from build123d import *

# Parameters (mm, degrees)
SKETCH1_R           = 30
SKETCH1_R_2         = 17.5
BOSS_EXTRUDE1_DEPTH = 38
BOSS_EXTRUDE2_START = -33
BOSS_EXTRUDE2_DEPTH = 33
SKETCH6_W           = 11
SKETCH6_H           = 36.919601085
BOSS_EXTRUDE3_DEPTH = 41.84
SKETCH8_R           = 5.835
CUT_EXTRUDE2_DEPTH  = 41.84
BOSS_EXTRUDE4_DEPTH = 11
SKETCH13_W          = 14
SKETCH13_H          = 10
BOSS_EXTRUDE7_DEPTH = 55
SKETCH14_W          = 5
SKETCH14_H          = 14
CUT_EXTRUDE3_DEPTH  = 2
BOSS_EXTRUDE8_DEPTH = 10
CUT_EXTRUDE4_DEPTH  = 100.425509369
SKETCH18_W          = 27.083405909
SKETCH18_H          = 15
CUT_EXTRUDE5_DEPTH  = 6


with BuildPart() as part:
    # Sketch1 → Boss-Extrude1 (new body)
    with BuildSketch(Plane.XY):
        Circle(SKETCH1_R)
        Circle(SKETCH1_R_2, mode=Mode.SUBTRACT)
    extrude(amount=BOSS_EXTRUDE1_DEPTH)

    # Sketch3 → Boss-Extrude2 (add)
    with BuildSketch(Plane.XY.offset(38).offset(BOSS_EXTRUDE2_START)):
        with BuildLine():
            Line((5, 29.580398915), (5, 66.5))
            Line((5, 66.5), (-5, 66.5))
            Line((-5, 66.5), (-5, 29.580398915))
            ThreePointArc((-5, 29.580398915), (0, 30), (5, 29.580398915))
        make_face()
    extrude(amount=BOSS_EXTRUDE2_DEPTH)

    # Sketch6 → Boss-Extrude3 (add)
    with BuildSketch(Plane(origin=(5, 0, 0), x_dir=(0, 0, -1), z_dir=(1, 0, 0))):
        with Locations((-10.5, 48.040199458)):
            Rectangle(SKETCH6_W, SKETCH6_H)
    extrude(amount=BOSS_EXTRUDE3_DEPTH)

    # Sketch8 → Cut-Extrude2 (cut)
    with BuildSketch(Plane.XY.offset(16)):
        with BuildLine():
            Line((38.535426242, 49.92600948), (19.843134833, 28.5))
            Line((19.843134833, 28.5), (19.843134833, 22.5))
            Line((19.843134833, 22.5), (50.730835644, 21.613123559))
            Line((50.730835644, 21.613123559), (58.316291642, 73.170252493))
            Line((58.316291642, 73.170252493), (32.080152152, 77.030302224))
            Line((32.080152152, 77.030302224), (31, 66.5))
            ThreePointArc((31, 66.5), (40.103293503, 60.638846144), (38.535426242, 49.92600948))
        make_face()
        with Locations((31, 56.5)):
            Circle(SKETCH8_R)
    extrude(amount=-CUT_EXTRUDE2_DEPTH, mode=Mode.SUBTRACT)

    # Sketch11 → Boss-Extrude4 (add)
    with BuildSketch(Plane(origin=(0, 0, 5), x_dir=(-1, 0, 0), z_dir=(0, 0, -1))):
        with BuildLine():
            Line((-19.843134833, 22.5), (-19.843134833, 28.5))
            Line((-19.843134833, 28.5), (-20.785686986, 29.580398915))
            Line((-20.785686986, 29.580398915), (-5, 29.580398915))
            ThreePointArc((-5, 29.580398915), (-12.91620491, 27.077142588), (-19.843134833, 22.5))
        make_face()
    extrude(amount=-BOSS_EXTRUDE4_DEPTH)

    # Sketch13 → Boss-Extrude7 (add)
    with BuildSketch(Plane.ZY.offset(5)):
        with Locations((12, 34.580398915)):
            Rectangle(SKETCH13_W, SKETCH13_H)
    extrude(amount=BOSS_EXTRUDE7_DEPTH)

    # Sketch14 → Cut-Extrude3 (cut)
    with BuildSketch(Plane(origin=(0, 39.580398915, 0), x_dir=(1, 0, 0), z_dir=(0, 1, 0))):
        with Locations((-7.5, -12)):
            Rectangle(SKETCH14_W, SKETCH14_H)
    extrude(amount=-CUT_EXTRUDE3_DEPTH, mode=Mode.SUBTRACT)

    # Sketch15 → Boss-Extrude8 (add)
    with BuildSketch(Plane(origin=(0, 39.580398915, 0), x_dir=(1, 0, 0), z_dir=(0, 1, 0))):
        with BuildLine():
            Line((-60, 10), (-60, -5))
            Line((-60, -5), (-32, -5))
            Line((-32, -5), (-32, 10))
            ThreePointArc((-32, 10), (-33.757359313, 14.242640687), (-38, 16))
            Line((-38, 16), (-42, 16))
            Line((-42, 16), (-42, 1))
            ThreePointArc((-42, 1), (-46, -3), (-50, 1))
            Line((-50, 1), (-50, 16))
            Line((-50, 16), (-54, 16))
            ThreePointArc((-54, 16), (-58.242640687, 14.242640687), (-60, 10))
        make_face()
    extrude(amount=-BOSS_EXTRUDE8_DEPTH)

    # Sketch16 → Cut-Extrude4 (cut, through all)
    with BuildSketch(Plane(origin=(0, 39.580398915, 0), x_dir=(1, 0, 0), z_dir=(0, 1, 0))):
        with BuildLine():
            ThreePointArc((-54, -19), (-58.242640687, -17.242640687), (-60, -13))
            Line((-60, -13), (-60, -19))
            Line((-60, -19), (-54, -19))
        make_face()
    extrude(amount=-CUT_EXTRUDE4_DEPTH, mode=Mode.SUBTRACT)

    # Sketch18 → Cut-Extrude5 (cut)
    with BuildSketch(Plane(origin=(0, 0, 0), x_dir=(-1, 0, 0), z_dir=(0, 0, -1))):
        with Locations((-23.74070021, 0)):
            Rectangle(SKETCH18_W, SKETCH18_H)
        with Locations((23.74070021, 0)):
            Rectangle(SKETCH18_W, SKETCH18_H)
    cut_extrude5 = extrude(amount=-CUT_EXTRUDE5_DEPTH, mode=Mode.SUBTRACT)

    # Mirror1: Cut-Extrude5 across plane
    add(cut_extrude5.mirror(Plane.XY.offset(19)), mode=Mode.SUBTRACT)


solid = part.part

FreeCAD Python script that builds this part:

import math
import FreeCAD as App
import Part
import Sketcher
Q = App.Units.Quantity

doc = App.newDocument("Part")
body = doc.addObject("PartDesign::Body", "Body")

sketch1 = body.newObject("Sketcher::SketchObject", "Sketch")
sketch1.AttachmentSupport = (doc.getObject("XY_Plane"), [""])
sketch1.MapMode = "FlatFace"
sketch1.addGeometry([
    Part.Circle(App.Vector(0, 0, 0), App.Vector(0, 0, 1), 30),
    Part.Circle(App.Vector(0, 0, 0), App.Vector(0, 0, 1), 18),
], False)
sketch1.addConstraint([
    Sketcher.Constraint("Coincident", 0, 3, -1, 1),
    Sketcher.Constraint("Coincident", 1, 3, -1, 1),
    Sketcher.Constraint("Diameter", 0, Q("60 mm")),
    Sketcher.Constraint("Diameter", 1, Q("35 mm")),
])
pad1 = body.newObject("PartDesign::Pad", "Pad")
pad1.Profile = sketch1
pad1.Length = 38

sketch2 = body.newObject("Sketcher::SketchObject", "Sketch001")
sketch2.AttachmentSupport = (doc.getObject("XY_Plane"), [""])
sketch2.MapMode = "FlatFace"
sketch2.AttachmentOffset = App.Placement(App.Vector(0, 0, 5), App.Rotation())
sketch2.addGeometry([
    Part.LineSegment(App.Vector(5, 30, 0), App.Vector(5, 66, 0)),
    Part.LineSegment(App.Vector(5, 66, 0), App.Vector(-5, 66, 0)),
    Part.LineSegment(App.Vector(-5, 66, 0), App.Vector(-5, 30, 0)),
    Part.ArcOfCircle(Part.Circle(App.Vector(0, 0, 0), App.Vector(0, 0, 1), 30), math.radians(80.41), math.radians(99.59)),
], False)
sketch2.addConstraint([
    Sketcher.Constraint("Coincident", 0, 2, 1, 1),
    Sketcher.Constraint("Coincident", 1, 2, 2, 1),
    Sketcher.Constraint("Coincident", 2, 2, 3, 2),
    Sketcher.Constraint("Coincident", 3, 1, 0, 1),
    Sketcher.Constraint("Vertical", 0),
    Sketcher.Constraint("Horizontal", 1),
    Sketcher.Constraint("Vertical", 2),
    Sketcher.Constraint("Coincident", 3, 3, -1, 1),
    Sketcher.Constraint("Horizontal", 2, 2, 3, 1),
    Sketcher.Constraint("Radius", 3, Q("30 mm")),
    Sketcher.Constraint("DistanceX", 1, 2, 1, 1, Q("10 mm")),
    Sketcher.Constraint("DistanceY", -1, 1, 0, 2, Q("66.5 mm")),
])
pad2 = body.newObject("PartDesign::Pad", "Pad001")
pad2.Profile = sketch2
pad2.Length = 33

sketch3 = body.newObject("Sketcher::SketchObject", "Sketch002")
sketch3.AttachmentSupport = (doc.getObject("YZ_Plane"), [""])
sketch3.MapMode = "FlatFace"
sketch3.AttachmentOffset = App.Placement(App.Vector(0, 0, 5), App.Rotation())
sketch3.addGeometry([
    Part.LineSegment(App.Vector(66, 16, 0), App.Vector(30, 16, 0)),
    Part.LineSegment(App.Vector(30, 16, 0), App.Vector(30, 5, 0)),
    Part.LineSegment(App.Vector(30, 5, 0), App.Vector(66, 5, 0)),
    Part.LineSegment(App.Vector(66, 5, 0), App.Vector(66, 16, 0)),
], False)
sketch3.addConstraint([
    Sketcher.Constraint("Coincident", 0, 2, 1, 1),
    Sketcher.Constraint("Coincident", 1, 2, 2, 1),
    Sketcher.Constraint("Coincident", 2, 2, 3, 1),
    Sketcher.Constraint("Coincident", 3, 2, 0, 1),
    Sketcher.Constraint("Horizontal", 0),
    Sketcher.Constraint("Vertical", 1),
    Sketcher.Constraint("Horizontal", 2),
    Sketcher.Constraint("Vertical", 3),
    Sketcher.Constraint("DistanceY", 1, 2, 1, 1, Q("11 mm")),
    Sketcher.Constraint("DistanceY", -1, 1, 0, 2, Q("16 mm")),
    Sketcher.Constraint("DistanceX", -1, 1, 2, 2, Q("66.5 mm")),
    Sketcher.Constraint("DistanceX", 0, 2, 0, 1, Q("36.919601 mm")),
])
pad3 = body.newObject("PartDesign::Pad", "Pad002")
pad3.Profile = sketch3
pad3.Length = 41.84

sketch4 = body.newObject("Sketcher::SketchObject", "Sketch003")
sketch4.AttachmentSupport = (doc.getObject("XY_Plane"), [""])
sketch4.MapMode = "FlatFace"
sketch4.AttachmentOffset = App.Placement(App.Vector(0, 0, 16), App.Rotation())
sketch4.addGeometry([
    Part.LineSegment(App.Vector(38.535426, 49.926009, 0), App.Vector(19.843135, 28.5, 0)),
    Part.LineSegment(App.Vector(19.843135, 28.5, 0), App.Vector(19.843135, 22.5, 0)),
    Part.LineSegment(App.Vector(19.843135, 22.5, 0), App.Vector(50.730836, 21.613124, 0)),
    Part.LineSegment(App.Vector(50.730836, 21.613124, 0), App.Vector(58.316292, 73.170252, 0)),
    Part.LineSegment(App.Vector(58.316292, 73.170252, 0), App.Vector(32.080152, 77.030302, 0)),
    Part.LineSegment(App.Vector(32.080152, 77.030302, 0), App.Vector(31, 66.5, 0)),
    Part.ArcOfCircle(Part.Circle(App.Vector(31, 56.5, 0), App.Vector(0, 0, 1), 10), math.radians(-41.10181), math.radians(90)),
    Part.Circle(App.Vector(31, 56.5, 0), App.Vector(0, 0, 1), 5.835),
], False)
sketch4.addConstraint([
    Sketcher.Constraint("Coincident", 0, 2, 1, 1),
    Sketcher.Constraint("Coincident", 1, 2, 2, 1),
    Sketcher.Constraint("Coincident", 2, 2, 3, 1),
    Sketcher.Constraint("Coincident", 3, 2, 4, 1),
    Sketcher.Constraint("Coincident", 4, 2, 5, 1),
    Sketcher.Constraint("Coincident", 5, 2, 6, 2),
    Sketcher.Constraint("Tangent", 6, 1, 0, 1),
    Sketcher.Constraint("Vertical", 1),
    Sketcher.Constraint("Coincident", 7, 3, 6, 3),
    Sketcher.Constraint("Perpendicular", 3, 4),
    Sketcher.Constraint("Vertical", 7, 3, 5, 2),
    Sketcher.Constraint("Radius", 6, Q("10 mm")),
    Sketcher.Constraint("Diameter", 7, Q("11.67 mm")),
    Sketcher.Constraint("DistanceY", 1, 2, 1, 1, Q("6 mm")),
    Sketcher.Constraint("DistanceX", -1, 1, 6, 3, Q("31 mm")),
    Sketcher.Constraint("DistanceY", 0, 2, 6, 3, Q("28 mm")),
    Sketcher.Constraint("DistanceY", -1, 1, 6, 3, Q("56.5 mm")),
    Sketcher.Constraint("DistanceX", 1, 2, 2, 2, Q("30.887701 mm")),
    Sketcher.Constraint("Distance", 2, Q("30.900431 mm")),
    Sketcher.Constraint("Distance", 4, Q("26.518578 mm")),
    Sketcher.Constraint("DistanceX", -1, 1, 3, 2, Q("58.316292 mm")),
    Sketcher.Constraint("DistanceY", -1, 1, 6, 1, Q("49.926009 mm")),
    Sketcher.Constraint("DistanceY", 2, 2, 3, 2, Q("51.557129 mm")),
])
pocket1 = body.newObject("PartDesign::Pocket", "Pocket")
pocket1.Profile = sketch4
pocket1.Length = 41.84

sketch5 = body.newObject("Sketcher::SketchObject", "Sketch004")
sketch5.AttachmentSupport = (doc.getObject("XY_Plane"), [""])
sketch5.MapMode = "FlatFace"
sketch5.AttachmentOffset = App.Placement(App.Vector(0, 0, 5), App.Rotation())
sketch5.addGeometry([
    Part.LineSegment(App.Vector(19.8, 28.5, 0), App.Vector(19.8, 22.5, 0)),
    Part.ArcOfCircle(Part.Circle(App.Vector(0, 0, 0), App.Vector(0, 0, 1), 30), math.radians(49), math.radians(80)),
    Part.LineSegment(App.Vector(5, 29.6, 0), App.Vector(20.8, 29.6, 0)),
    Part.LineSegment(App.Vector(20.8, 29.6, 0), App.Vector(19.8, 28.5, 0)),
], False)
sketch5.addConstraint([
    Sketcher.Constraint("Coincident", 0, 2, 1, 1),
    Sketcher.Constraint("Coincident", 1, 2, 2, 1),
    Sketcher.Constraint("Coincident", 2, 2, 3, 1),
    Sketcher.Constraint("Coincident", 3, 2, 0, 1),
    Sketcher.Constraint("Vertical", 0),
    Sketcher.Constraint("Horizontal", 2),
    Sketcher.Constraint("Coincident", 1, 3, -1, 1),
    Sketcher.Constraint("Radius", 1, Q("30 mm")),
    Sketcher.Constraint("DistanceY", 0, 2, 0, 1, Q("6 mm")),
    Sketcher.Constraint("DistanceX", -1, 1, 1, 2, Q("5 mm")),
    Sketcher.Constraint("DistanceY", -1, 1, 0, 2, Q("22.5 mm")),
    Sketcher.Constraint("Distance", 3, Q("1.43376 mm")),
])
pad4 = body.newObject("PartDesign::Pad", "Pad003")
pad4.Profile = sketch5
pad4.Length = 11

sketch6 = body.newObject("Sketcher::SketchObject", "Sketch005")
sketch6.AttachmentSupport = (doc.getObject("YZ_Plane"), [""])
sketch6.MapMode = "FlatFace"
sketch6.AttachmentOffset = App.Placement(App.Vector(0, 0, -5), App.Rotation())
sketch6.addGeometry([
    Part.LineSegment(App.Vector(40, 5, 0), App.Vector(30, 5, 0)),
    Part.LineSegment(App.Vector(30, 5, 0), App.Vector(30, 19, 0)),
    Part.LineSegment(App.Vector(30, 19, 0), App.Vector(40, 19, 0)),
    Part.LineSegment(App.Vector(40, 19, 0), App.Vector(40, 5, 0)),
], False)
sketch6.addConstraint([
    Sketcher.Constraint("Coincident", 0, 2, 1, 1),
    Sketcher.Constraint("Coincident", 1, 2, 2, 1),
    Sketcher.Constraint("Coincident", 2, 2, 3, 1),
    Sketcher.Constraint("Coincident", 3, 2, 0, 1),
    Sketcher.Constraint("Horizontal", 0),
    Sketcher.Constraint("Vertical", 1),
    Sketcher.Constraint("Horizontal", 2),
    Sketcher.Constraint("Vertical", 3),
    Sketcher.Constraint("DistanceX", 0, 2, 0, 1, Q("10 mm")),
    Sketcher.Constraint("DistanceY", 1, 1, 1, 2, Q("14 mm")),
    Sketcher.Constraint("DistanceY", -1, 1, 0, 2, Q("5 mm")),
    Sketcher.Constraint("DistanceX", -1, 1, 0, 2, Q("29.580399 mm")),
])
pad5 = body.newObject("PartDesign::Pad", "Pad004")
pad5.Profile = sketch6
pad5.Length = 55
pad5.Reversed = True

sketch7 = body.newObject("Sketcher::SketchObject", "Sketch006")
sketch7.AttachmentSupport = (doc.getObject("XZ_Plane"), [""])
sketch7.MapMode = "FlatFace"
sketch7.AttachmentOffset = App.Placement(App.Vector(0, 0, -39.580399), App.Rotation())
sketch7.addGeometry([
    Part.LineSegment(App.Vector(-10, 5, 0), App.Vector(-10, 19, 0)),
    Part.LineSegment(App.Vector(-10, 19, 0), App.Vector(-5, 19, 0)),
    Part.LineSegment(App.Vector(-5, 19, 0), App.Vector(-5, 5, 0)),
    Part.LineSegment(App.Vector(-5, 5, 0), App.Vector(-10, 5, 0)),
], False)
sketch7.addConstraint([
    Sketcher.Constraint("Coincident", 0, 2, 1, 1),
    Sketcher.Constraint("Coincident", 1, 2, 2, 1),
    Sketcher.Constraint("Coincident", 2, 2, 3, 1),
    Sketcher.Constraint("Coincident", 3, 2, 0, 1),
    Sketcher.Constraint("Vertical", 0),
    Sketcher.Constraint("Horizontal", 1),
    Sketcher.Constraint("Vertical", 2),
    Sketcher.Constraint("Horizontal", 3),
    Sketcher.Constraint("DistanceX", 1, 1, 1, 2, Q("5 mm")),
    Sketcher.Constraint("DistanceY", 0, 1, 0, 2, Q("14 mm")),
    Sketcher.Constraint("DistanceX", 0, 2, -1, 1, Q("10 mm")),
    Sketcher.Constraint("DistanceY", -1, 1, 0, 2, Q("19 mm")),
])
pocket2 = body.newObject("PartDesign::Pocket", "Pocket001")
pocket2.Profile = sketch7
pocket2.Length = 2
pocket2.Reversed = True

sketch8 = body.newObject("Sketcher::SketchObject", "Sketch007")
sketch8.AttachmentSupport = (doc.getObject("XZ_Plane"), [""])
sketch8.MapMode = "FlatFace"
sketch8.AttachmentOffset = App.Placement(App.Vector(0, 0, -39.580399), App.Rotation())
sketch8.addGeometry([
    Part.LineSegment(App.Vector(-60, -10, 0), App.Vector(-60, 5, 0)),
    Part.LineSegment(App.Vector(-60, 5, 0), App.Vector(-32, 5, 0)),
    Part.LineSegment(App.Vector(-32, 5, 0), App.Vector(-32, -10, 0)),
    Part.ArcOfCircle(Part.Circle(App.Vector(-38, -10, 0), App.Vector(0, 0, 1), 6), math.radians(-90), math.radians(0)),
    Part.LineSegment(App.Vector(-38, -16, 0), App.Vector(-42, -16, 0)),
    Part.LineSegment(App.Vector(-42, -16, 0), App.Vector(-42, -1, 0)),
    Part.ArcOfCircle(Part.Circle(App.Vector(-46, -1, 0), App.Vector(0, 0, 1), 4), math.radians(0), math.radians(180)),
    Part.LineSegment(App.Vector(-50, -1, 0), App.Vector(-50, -16, 0)),
    Part.LineSegment(App.Vector(-50, -16, 0), App.Vector(-54, -16, 0)),
    Part.ArcOfCircle(Part.Circle(App.Vector(-54, -10, 0), App.Vector(0, 0, 1), 6), math.radians(180), math.radians(270)),
], False)
sketch8.addConstraint([
    Sketcher.Constraint("Coincident", 0, 2, 1, 1),
    Sketcher.Constraint("Coincident", 1, 2, 2, 1),
    Sketcher.Constraint("Tangent", 2, 2, 3, 2),
    Sketcher.Constraint("Tangent", 3, 1, 4, 1),
    Sketcher.Constraint("Coincident", 4, 2, 5, 1),
    Sketcher.Constraint("Tangent", 5, 2, 6, 1),
    Sketcher.Constraint("Tangent", 6, 2, 7, 1),
    Sketcher.Constraint("Coincident", 7, 2, 8, 1),
    Sketcher.Constraint("Tangent", 8, 2, 9, 2),
    Sketcher.Constraint("Tangent", 9, 1, 0, 1),
    Sketcher.Constraint("Vertical", 0),
    Sketcher.Constraint("Horizontal", 1),
    Sketcher.Constraint("Vertical", 2),
    Sketcher.Constraint("Horizontal", 4),
    Sketcher.Constraint("Vertical", 5),
    Sketcher.Constraint("Vertical", 7),
    Sketcher.Constraint("Horizontal", 8),
    Sketcher.Constraint("Equal", 3, 9),
    Sketcher.Constraint("Horizontal", 3, 3, 9, 3),
    Sketcher.Constraint("Equal", 4, 8),
    Sketcher.Constraint("Equal", 2, 5),
    Sketcher.Constraint("Radius", 3, Q("6 mm")),
    Sketcher.Constraint("Radius", 6, Q("4 mm")),
    Sketcher.Constraint("DistanceX", 1, 1, 1, 2, Q("28 mm")),
    Sketcher.Constraint("DistanceY", 0, 1, 0, 2, Q("15 mm")),
    Sketcher.Constraint("DistanceX", 3, 3, -1, 1, Q("38 mm")),
    Sketcher.Constraint("DistanceY", 3, 3, -1, 1, Q("10 mm")),
])
pad6 = body.newObject("PartDesign::Pad", "Pad005")
pad6.Profile = sketch8
pad6.Length = 10

sketch9 = body.newObject("Sketcher::SketchObject", "Sketch008")
sketch9.AttachmentSupport = (doc.getObject("XZ_Plane"), [""])
sketch9.MapMode = "FlatFace"
sketch9.AttachmentOffset = App.Placement(App.Vector(0, 0, -39.580399), App.Rotation())
sketch9.addGeometry([
    Part.ArcOfCircle(Part.Circle(App.Vector(-54, 13, 0), App.Vector(0, 0, 1), 6), math.radians(90), math.radians(180)),
    Part.LineSegment(App.Vector(-60, 13, 0), App.Vector(-60, 19, 0)),
    Part.LineSegment(App.Vector(-60, 19, 0), App.Vector(-54, 19, 0)),
], False)
sketch9.addConstraint([
    Sketcher.Constraint("Tangent", 0, 2, 1, 1),
    Sketcher.Constraint("Coincident", 1, 2, 2, 1),
    Sketcher.Constraint("Tangent", 2, 2, 0, 1),
    Sketcher.Constraint("Vertical", 1),
    Sketcher.Constraint("Horizontal", 2),
    Sketcher.Constraint("Radius", 0, Q("6 mm")),
    Sketcher.Constraint("DistanceX", 0, 3, -1, 1, Q("54 mm")),
    Sketcher.Constraint("DistanceY", -1, 1, 0, 3, Q("13 mm")),
])
pocket3 = body.newObject("PartDesign::Pocket", "Pocket002")
pocket3.Profile = sketch9
pocket3.Type = "ThroughAll"
pocket3.Reversed = True

sketch10 = body.newObject("Sketcher::SketchObject", "Sketch009")
sketch10.AttachmentSupport = (doc.getObject("XY_Plane"), [""])
sketch10.MapMode = "FlatFace"
sketch10.addGeometry([
    Part.LineSegment(App.Vector(37, 8, 0), App.Vector(37, -8, 0)),
    Part.LineSegment(App.Vector(37, -8, 0), App.Vector(10, -8, 0)),
    Part.LineSegment(App.Vector(10, -8, 0), App.Vector(10, 8, 0)),
    Part.LineSegment(App.Vector(10, 8, 0), App.Vector(37, 8, 0)),
    Part.LineSegment(App.Vector(-10, 8, 0), App.Vector(-10, -8, 0)),
    Part.LineSegment(App.Vector(-10, -8, 0), App.Vector(-37, -8, 0)),
    Part.LineSegment(App.Vector(-37, -8, 0), App.Vector(-37, 8, 0)),
    Part.LineSegment(App.Vector(-37, 8, 0), App.Vector(-10, 8, 0)),
], False)
sketch10.addConstraint([
    Sketcher.Constraint("Coincident", 0, 2, 1, 1),
    Sketcher.Constraint("Coincident", 1, 2, 2, 1),
    Sketcher.Constraint("Coincident", 2, 2, 3, 1),
    Sketcher.Constraint("Coincident", 3, 2, 0, 1),
    Sketcher.Constraint("Coincident", 4, 2, 5, 1),
    Sketcher.Constraint("Coincident", 5, 2, 6, 1),
    Sketcher.Constraint("Coincident", 6, 2, 7, 1),
    Sketcher.Constraint("Coincident", 7, 2, 4, 1),
    Sketcher.Constraint("Vertical", 0),
    Sketcher.Constraint("Horizontal", 1),
    Sketcher.Constraint("Vertical", 2),
    Sketcher.Constraint("Horizontal", 3),
    Sketcher.Constraint("Vertical", 4),
    Sketcher.Constraint("Horizontal", 5),
    Sketcher.Constraint("Vertical", 6),
    Sketcher.Constraint("Horizontal", 7),
    Sketcher.Constraint("Symmetric", 2, 2, 4, 2, -1, 1),
    Sketcher.Constraint("Symmetric", 0, 2, 6, 2, -1, 1),
    Sketcher.Constraint("Horizontal", 1, 2, 4, 2),
    Sketcher.Constraint("DistanceY", 0, 2, 0, 1, Q("15 mm")),
    Sketcher.Constraint("DistanceX", 4, 2, 0, 2, Q("47.4814 mm")),
    Sketcher.Constraint("DistanceX", 1, 2, 1, 1, Q("27.083406 mm")),
])
pocket4 = body.newObject("PartDesign::Pocket", "Pocket003")
pocket4.Profile = sketch10
pocket4.Length = 6
pocket4.Reversed = True
doc.recompute()

datumplane = body.newObject("PartDesign::Plane", "DatumPlane")
datumplane.AttachmentSupport = (doc.getObject("XY_Plane"), [""])
datumplane.MapMode = "FlatFace"
datumplane.AttachmentOffset = App.Placement(App.Vector(0, 0, 19), App.Rotation())
mirrored = body.newObject("PartDesign::Mirrored", "Mirrored")
mirrored.Originals = [pocket4]
mirrored.MirrorPlane = (datumplane, [""])
body.Tip = mirrored

doc.recompute()
